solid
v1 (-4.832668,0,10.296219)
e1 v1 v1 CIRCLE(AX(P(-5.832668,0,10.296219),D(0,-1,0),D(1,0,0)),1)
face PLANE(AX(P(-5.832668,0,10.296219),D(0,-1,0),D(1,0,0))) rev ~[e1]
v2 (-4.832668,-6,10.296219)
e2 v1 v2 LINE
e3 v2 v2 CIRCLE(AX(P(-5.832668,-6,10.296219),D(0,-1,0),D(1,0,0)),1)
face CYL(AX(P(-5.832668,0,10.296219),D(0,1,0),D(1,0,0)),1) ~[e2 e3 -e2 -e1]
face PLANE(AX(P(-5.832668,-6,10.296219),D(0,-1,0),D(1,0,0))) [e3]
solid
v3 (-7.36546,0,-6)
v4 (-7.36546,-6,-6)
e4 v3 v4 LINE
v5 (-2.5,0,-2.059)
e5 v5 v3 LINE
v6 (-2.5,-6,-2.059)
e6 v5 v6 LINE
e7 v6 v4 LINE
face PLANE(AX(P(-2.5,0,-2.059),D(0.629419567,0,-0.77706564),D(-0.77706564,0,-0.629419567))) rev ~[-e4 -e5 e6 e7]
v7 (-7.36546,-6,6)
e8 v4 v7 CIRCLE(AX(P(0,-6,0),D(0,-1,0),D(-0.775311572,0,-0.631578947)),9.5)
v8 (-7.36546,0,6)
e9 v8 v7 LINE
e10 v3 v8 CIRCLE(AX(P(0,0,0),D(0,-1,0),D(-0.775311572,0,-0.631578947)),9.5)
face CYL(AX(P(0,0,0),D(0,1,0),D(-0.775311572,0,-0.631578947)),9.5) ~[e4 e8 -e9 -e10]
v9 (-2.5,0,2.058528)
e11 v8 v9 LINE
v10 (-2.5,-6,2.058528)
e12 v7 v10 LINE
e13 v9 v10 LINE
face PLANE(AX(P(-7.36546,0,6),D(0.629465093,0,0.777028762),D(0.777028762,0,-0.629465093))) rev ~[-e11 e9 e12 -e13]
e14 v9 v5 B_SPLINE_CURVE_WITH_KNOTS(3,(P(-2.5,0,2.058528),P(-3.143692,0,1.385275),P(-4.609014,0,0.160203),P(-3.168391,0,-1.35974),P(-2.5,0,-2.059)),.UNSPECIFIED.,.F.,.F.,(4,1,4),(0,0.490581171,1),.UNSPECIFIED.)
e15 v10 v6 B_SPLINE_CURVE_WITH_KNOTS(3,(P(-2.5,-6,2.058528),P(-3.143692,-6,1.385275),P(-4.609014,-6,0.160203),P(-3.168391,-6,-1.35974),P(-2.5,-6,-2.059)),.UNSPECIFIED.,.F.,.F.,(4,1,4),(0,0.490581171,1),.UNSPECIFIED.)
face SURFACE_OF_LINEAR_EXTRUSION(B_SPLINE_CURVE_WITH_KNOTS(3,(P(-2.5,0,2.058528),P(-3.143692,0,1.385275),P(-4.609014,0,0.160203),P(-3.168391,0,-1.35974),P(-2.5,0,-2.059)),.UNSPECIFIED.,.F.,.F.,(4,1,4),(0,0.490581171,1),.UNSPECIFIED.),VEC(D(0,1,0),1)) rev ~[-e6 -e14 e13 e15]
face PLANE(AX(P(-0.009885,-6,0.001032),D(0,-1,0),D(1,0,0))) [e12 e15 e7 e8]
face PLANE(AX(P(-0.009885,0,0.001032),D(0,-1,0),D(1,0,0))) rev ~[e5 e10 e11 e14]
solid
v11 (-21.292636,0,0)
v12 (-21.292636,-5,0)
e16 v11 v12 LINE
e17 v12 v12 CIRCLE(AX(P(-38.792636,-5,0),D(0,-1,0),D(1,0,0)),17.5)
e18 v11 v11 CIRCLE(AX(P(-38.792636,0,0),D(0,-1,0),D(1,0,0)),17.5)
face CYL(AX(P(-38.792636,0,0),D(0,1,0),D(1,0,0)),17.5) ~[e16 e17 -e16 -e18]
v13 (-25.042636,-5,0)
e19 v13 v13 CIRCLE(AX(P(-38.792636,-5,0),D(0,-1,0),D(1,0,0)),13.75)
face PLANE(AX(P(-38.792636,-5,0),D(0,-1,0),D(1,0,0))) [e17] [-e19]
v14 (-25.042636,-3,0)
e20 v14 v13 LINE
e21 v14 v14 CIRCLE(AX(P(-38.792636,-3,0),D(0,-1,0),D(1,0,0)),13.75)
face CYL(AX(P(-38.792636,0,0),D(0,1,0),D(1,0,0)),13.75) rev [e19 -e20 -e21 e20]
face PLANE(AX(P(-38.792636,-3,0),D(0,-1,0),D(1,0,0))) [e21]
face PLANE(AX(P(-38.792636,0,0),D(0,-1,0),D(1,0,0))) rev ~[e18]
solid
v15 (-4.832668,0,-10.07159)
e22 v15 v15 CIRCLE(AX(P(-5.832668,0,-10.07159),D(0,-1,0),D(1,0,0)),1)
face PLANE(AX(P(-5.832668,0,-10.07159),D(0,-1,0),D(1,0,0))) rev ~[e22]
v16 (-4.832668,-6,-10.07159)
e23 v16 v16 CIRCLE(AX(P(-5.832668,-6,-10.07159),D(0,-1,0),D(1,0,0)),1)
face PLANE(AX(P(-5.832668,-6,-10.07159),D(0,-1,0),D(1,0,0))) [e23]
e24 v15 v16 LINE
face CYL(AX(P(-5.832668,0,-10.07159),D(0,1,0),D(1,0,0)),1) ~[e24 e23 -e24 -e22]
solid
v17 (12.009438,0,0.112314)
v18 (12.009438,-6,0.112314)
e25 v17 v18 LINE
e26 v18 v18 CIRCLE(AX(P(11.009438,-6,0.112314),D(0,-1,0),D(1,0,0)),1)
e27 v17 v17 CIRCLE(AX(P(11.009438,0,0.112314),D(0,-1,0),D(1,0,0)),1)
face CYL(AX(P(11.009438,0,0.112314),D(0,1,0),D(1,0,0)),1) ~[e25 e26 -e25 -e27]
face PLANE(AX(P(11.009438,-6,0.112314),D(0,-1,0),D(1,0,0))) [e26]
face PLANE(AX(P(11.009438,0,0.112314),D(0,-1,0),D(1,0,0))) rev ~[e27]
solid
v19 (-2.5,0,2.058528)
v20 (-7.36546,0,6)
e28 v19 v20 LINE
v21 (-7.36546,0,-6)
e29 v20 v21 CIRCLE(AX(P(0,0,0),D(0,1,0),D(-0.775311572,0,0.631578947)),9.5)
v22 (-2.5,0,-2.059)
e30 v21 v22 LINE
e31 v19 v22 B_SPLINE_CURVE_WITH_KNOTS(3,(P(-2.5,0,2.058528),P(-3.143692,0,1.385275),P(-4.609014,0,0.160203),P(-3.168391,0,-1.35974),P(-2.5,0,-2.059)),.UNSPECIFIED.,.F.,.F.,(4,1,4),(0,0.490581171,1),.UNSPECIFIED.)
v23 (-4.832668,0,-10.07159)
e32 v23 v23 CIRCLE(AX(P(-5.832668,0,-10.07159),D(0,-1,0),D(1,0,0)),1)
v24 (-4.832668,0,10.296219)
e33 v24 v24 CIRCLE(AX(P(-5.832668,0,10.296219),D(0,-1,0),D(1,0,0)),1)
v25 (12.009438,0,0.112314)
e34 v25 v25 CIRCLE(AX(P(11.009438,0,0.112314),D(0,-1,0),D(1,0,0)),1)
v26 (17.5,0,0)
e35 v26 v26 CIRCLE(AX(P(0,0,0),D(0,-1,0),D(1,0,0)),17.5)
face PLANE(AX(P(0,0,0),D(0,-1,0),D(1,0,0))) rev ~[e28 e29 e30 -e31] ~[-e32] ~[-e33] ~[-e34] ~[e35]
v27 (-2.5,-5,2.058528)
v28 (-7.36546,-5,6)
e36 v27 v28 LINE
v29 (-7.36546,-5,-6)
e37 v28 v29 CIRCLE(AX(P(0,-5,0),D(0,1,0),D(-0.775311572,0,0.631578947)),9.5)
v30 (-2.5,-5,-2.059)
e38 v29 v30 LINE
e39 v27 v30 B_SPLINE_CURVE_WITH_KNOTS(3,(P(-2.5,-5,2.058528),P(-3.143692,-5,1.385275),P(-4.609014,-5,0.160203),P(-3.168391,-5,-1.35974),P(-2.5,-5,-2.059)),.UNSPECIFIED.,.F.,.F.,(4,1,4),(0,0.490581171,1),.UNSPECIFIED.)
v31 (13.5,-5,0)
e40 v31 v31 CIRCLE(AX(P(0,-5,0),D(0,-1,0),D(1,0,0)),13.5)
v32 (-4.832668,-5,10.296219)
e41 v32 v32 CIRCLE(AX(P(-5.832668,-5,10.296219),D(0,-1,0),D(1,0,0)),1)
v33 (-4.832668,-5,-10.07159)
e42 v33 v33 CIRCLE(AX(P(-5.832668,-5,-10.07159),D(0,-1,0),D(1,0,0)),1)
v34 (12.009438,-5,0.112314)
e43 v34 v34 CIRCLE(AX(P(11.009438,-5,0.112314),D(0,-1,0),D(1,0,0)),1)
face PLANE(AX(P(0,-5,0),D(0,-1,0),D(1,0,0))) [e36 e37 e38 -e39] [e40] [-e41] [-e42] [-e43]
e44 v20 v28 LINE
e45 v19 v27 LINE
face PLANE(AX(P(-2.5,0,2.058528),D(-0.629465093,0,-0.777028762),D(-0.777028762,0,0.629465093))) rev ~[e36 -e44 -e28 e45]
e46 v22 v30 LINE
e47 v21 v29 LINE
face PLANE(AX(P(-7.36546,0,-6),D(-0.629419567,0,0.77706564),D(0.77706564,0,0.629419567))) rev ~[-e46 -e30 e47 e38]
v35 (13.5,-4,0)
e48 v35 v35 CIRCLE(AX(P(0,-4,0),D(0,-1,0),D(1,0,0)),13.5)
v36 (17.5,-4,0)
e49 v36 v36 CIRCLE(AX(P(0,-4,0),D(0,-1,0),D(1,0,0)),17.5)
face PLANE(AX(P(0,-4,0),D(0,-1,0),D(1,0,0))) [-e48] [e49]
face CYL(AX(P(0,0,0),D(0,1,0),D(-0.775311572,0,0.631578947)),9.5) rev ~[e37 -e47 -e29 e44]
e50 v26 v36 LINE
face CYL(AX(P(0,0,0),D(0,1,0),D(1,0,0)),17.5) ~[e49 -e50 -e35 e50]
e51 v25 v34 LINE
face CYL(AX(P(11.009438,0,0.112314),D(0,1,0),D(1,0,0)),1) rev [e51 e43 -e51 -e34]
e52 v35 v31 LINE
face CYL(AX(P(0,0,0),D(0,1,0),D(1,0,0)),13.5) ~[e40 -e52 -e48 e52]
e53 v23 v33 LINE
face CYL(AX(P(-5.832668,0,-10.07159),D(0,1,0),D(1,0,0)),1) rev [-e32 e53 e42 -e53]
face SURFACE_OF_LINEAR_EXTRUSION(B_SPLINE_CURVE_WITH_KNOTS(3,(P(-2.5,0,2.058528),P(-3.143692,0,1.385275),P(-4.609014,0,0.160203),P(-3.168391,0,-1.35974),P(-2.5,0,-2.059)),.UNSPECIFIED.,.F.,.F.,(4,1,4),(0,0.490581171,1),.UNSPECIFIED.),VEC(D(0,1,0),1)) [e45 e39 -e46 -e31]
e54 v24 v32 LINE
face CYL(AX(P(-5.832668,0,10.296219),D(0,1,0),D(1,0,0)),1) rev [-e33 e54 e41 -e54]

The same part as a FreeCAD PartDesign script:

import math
import FreeCAD as App
import Part
import Sketcher

doc = App.newDocument("Part")
params = doc.addObject("Spreadsheet::Sheet", "Params")
for row, (alias, value) in enumerate([
    ("sketch1_radius", "9.5 mm"),
    ("pad1_length", "6 mm"),
    ("sketch2_diameter", "2 mm"),
    ("pad2_length", "6 mm"),
    ("sketch3_diameter", "2 mm"),
    ("pad3_length", "6 mm"),
    ("sketch4_diameter", "2 mm"),
    ("pad4_length", "6 mm"),
    ("sketch5_diameter", "27 mm"),
    ("sketch5_diameter2", "2 mm"),
    ("sketch5_radius", "9.5 mm"),
    ("pad5_length", "5 mm"),
    ("sketch6_diameter", "35 mm"),
    ("sketch6_diameter2", "27 mm"),
    ("pad6_length", "4 mm"),
    ("sketch7_diameter", "27.5 mm"),
    ("pad7_length", "3 mm"),
    ("sketch8_diameter", "35 mm"),
    ("sketch8_diameter2", "27.5 mm"),
    ("pad8_length", "5 mm"),
], start=1):
    params.set(f"A{row}", alias)
    params.set(f"B{row}", "=" + value)
    params.setAlias(f"B{row}", alias)

body = doc.addObject("PartDesign::Body", "Body")

# Sketch on XZ plane
sketch1 = body.newObject("Sketcher::SketchObject", "Sketch")
sketch1.AttachmentSupport = (doc.getObject("XZ_Plane"), [""])
sketch1.MapMode = "FlatFace"
sketch1.addGeometry(Part.ArcOfCircle(Part.Circle(App.Vector(0, 0, 0), App.Vector(0, 0, 1), 9.5), math.radians(-140.833289), math.radians(140.833289)), False)
sketch1.addGeometry(Part.LineSegment(App.Vector(-7.36546, 6, 0), App.Vector(-2.5, 2.058528, 0)), False)
sketch1.addGeometry(Part.BSplineCurve([App.Vector(-2.5, 2.058528, 0), App.Vector(-3.143692, 1.385275, 0), App.Vector(-4.609014, 0.160203, 0), App.Vector(-3.168391, -1.35974, 0), App.Vector(-2.5, -2.059, 0)], [4, 1, 4], [0, 0.490581171, 1], False, 3, [1, 1, 1, 1, 1], False), False)
sketch1.addGeometry(Part.LineSegment(App.Vector(-2.5, -2.059, 0), App.Vector(-7.36546, -6, 0)), False)
sketch1.addConstraint(Sketcher.Constraint("Block", 2))
sketch1.addConstraint(Sketcher.Constraint("Coincident", 0, 2, 1, 1))
sketch1.addConstraint(Sketcher.Constraint("Coincident", 1, 2, 2, 1))
sketch1.addConstraint(Sketcher.Constraint("Coincident", 2, 2, 3, 1))
sketch1.addConstraint(Sketcher.Constraint("Coincident", 3, 2, 0, 1))
sketch1.addConstraint(Sketcher.Constraint("Coincident", 0, 3, -1, 1))
sketch1.addConstraint(Sketcher.Constraint("Vertical", 0, 2, 3, 2))
sketch1.addConstraint(Sketcher.Constraint("Radius", 0, 9.5))
sketch1.addConstraint(Sketcher.Constraint("DistanceY", -1, 1, 0, 2, 6.0))
sketch1.setExpression("Constraints[7]", "Params.sketch1_radius")
pad1 = body.newObject("PartDesign::Pad", "Pad")
pad1.Profile = sketch1
pad1.setExpression("Length", "Params.pad1_length")
body2 = doc.addObject("PartDesign::Body", "Body001")

# Sketch on XZ plane
sketch2 = body2.newObject("Sketcher::SketchObject", "Sketch001")
sketch2.AttachmentSupport = (doc.getObject("XZ_Plane001"), [""])
sketch2.MapMode = "FlatFace"
sketch2.addGeometry(Part.Circle(App.Vector(-5.8, 10.3, 0), App.Vector(0, 0, 1), 1), False)
sketch2.addConstraint(Sketcher.Constraint("Diameter", 0, 2.0))
sketch2.addConstraint(Sketcher.Constraint("DistanceY", -1, 1, 0, 3, 10.296219))
sketch2.addConstraint(Sketcher.Constraint("DistanceX", 0, 3, -1, 1, 5.832668))
sketch2.setExpression("Constraints[0]", "Params.sketch2_diameter")
pad2 = body2.newObject("PartDesign::Pad", "Pad001")
pad2.Profile = sketch2
pad2.setExpression("Length", "Params.pad2_length")
body3 = doc.addObject("PartDesign::Body", "Body002")

# Sketch on XZ plane
sketch3 = body3.newObject("Sketcher::SketchObject", "Sketch002")
sketch3.AttachmentSupport = (doc.getObject("XZ_Plane002"), [""])
sketch3.MapMode = "FlatFace"
sketch3.addGeometry(Part.Circle(App.Vector(-5.8, -10.1, 0), App.Vector(0, 0, 1), 1), False)
sketch3.addConstraint(Sketcher.Constraint("Diameter", 0, 2.0))
sketch3.addConstraint(Sketcher.Constraint("DistanceY", 0, 3, -1, 1, 10.07159))
sketch3.addConstraint(Sketcher.Constraint("DistanceX", 0, 3, -1, 1, 5.832668))
sketch3.setExpression("Constraints[0]", "Params.sketch3_diameter")
pad3 = body3.newObject("PartDesign::Pad", "Pad002")
pad3.Profile = sketch3
pad3.setExpression("Length", "Params.pad3_length")
body4 = doc.addObject("PartDesign::Body", "Body003")

# Sketch on XZ plane
sketch4 = body4.newObject("Sketcher::SketchObject", "Sketch003")
sketch4.AttachmentSupport = (doc.getObject("XZ_Plane003"), [""])
sketch4.MapMode = "FlatFace"
sketch4.addGeometry(Part.Circle(App.Vector(11, 0.1, 0), App.Vector(0, 0, 1), 1), False)
sketch4.addConstraint(Sketcher.Constraint("Diameter", 0, 2.0))
sketch4.addConstraint(Sketcher.Constraint("DistanceX", -1, 1, 0, 3, 11.009438))
sketch4.addConstraint(Sketcher.Constraint("DistanceY", -1, 1, 0, 3, 0.112314))
sketch4.setExpression("Constraints[0]", "Params.sketch4_diameter")
pad4 = body4.newObject("PartDesign::Pad", "Pad003")
pad4.Profile = sketch4
pad4.setExpression("Length", "Params.pad4_length")
body5 = doc.addObject("PartDesign::Body", "Body004")

# Sketch on XZ plane
sketch5 = body5.newObject("Sketcher::SketchObject", "Sketch004")
sketch5.AttachmentSupport = (doc.getObject("XZ_Plane004"), [""])
sketch5.MapMode = "FlatFace"
sketch5.addGeometry(Part.Circle(App.Vector(0, 0, 0), App.Vector(0, 0, 1), 13.5), False)
sketch5.addGeometry(Part.Circle(App.Vector(-5.832668, -10.07159, 0), App.Vector(0, 0, 1), 1), False)
sketch5.addGeometry(Part.BSplineCurve([App.Vector(-2.5, 2.058528, 0), App.Vector(-3.143692, 1.385275, 0), App.Vector(-4.609014, 0.160203, 0), App.Vector(-3.168391, -1.35974, 0), App.Vector(-2.5, -2.059, 0)], [4, 1, 4], [0, 0.490581171, 1], False, 3, [1, 1, 1, 1, 1], False), False)
sketch5.addGeometry(Part.LineSegment(App.Vector(-2.5, 2.058528, 0), App.Vector(-7.36546, 6, 0)), False)
sketch5.addGeometry(Part.ArcOfCircle(Part.Circle(App.Vector(0, 0, 0), App.Vector(0, 0, 1), 9.5), math.radians(-140.833289), math.radians(140.833289)), False)
sketch5.addGeometry(Part.LineSegment(App.Vector(-7.36546, -6, 0), App.Vector(-2.5, -2.059, 0)), False)
sketch5.addGeometry(Part.Circle(App.Vector(-5.832668, 10.296219, 0), App.Vector(0, 0, 1), 1), False)
sketch5.addGeometry(Part.Circle(App.Vector(11.009438, 0.112314, 0), App.Vector(0, 0, 1), 1), False)
sketch5.addConstraint(Sketcher.Constraint("Block", 2))
sketch5.addConstraint(Sketcher.Constraint("Coincident", 2, 1, 3, 1))
sketch5.addConstraint(Sketcher.Constraint("Coincident", 3, 2, 4, 2))
sketch5.addConstraint(Sketcher.Constraint("Coincident", 4, 1, 5, 1))
sketch5.addConstraint(Sketcher.Constraint("Coincident", 5, 2, 2, 2))
sketch5.addConstraint(Sketcher.Constraint("Coincident", 0, 3, -1, 1))
sketch5.addConstraint(Sketcher.Constraint("Coincident", 4, 3, -1, 1))
sketch5.addConstraint(Sketcher.Constraint("Equal", 1, 6))
sketch5.addConstraint(Sketcher.Constraint("Equal", 6, 7))
sketch5.addConstraint(Sketcher.Constraint("Vertical", 1, 3, 6, 3))
sketch5.addConstraint(Sketcher.Constraint("Vertical", 3, 2, 4, 1))
sketch5.addConstraint(Sketcher.Constraint("Diameter", 0, 27.0))
sketch5.addConstraint(Sketcher.Constraint("Diameter", 1, 2.0))
sketch5.addConstraint(Sketcher.Constraint("Radius", 4, 9.5))
sketch5.addConstraint(Sketcher.Constraint("DistanceY", -1, 1, 3, 2, 6.0))
sketch5.addConstraint(Sketcher.Constraint("DistanceY", 1, 3, -1, 1, 10.07159))
sketch5.addConstraint(Sketcher.Constraint("DistanceY", -1, 1, 6, 3, 10.296219))
sketch5.addConstraint(Sketcher.Constraint("DistanceX", 1, 3, -1, 1, 5.832668))
sketch5.addConstraint(Sketcher.Constraint("DistanceX", -1, 1, 7, 3, 11.009438))
sketch5.addConstraint(Sketcher.Constraint("DistanceY", -1, 1, 7, 3, 0.112314))
sketch5.setExpression("Constraints[11]", "Params.sketch5_diameter")
sketch5.setExpression("Constraints[12]", "Params.sketch5_diameter2")
sketch5.setExpression("Constraints[13]", "Params.sketch5_radius")
pad5 = body5.newObject("PartDesign::Pad", "Pad004")
pad5.Profile = sketch5
pad5.setExpression("Length", "Params.pad5_length")

# Sketch on XZ plane
sketch6 = body5.newObject("Sketcher::SketchObject", "Sketch005")
sketch6.AttachmentSupport = (doc.getObject("XZ_Plane004"), [""])
sketch6.MapMode = "FlatFace"
sketch6.addGeometry(Part.Circle(App.Vector(0, 0, 0), App.Vector(0, 0, 1), 18), False)
sketch6.addGeometry(Part.Circle(App.Vector(0, 0, 0), App.Vector(0, 0, 1), 14), False)
sketch6.addConstraint(Sketcher.Constraint("Coincident", 0, 3, -1, 1))
sketch6.addConstraint(Sketcher.Constraint("Coincident", 1, 3, -1, 1))
sketch6.addConstraint(Sketcher.Constraint("Diameter", 0, 35.0))
sketch6.addConstraint(Sketcher.Constraint("Diameter", 1, 27.0))
sketch6.setExpression("Constraints[2]", "Params.sketch6_diameter")
sketch6.setExpression("Constraints[3]", "Params.sketch6_diameter2")
pad6 = body5.newObject("PartDesign::Pad", "Pad005")
pad6.Profile = sketch6
pad6.setExpression("Length", "Params.pad6_length")
body6 = doc.addObject("PartDesign::Body", "Body005")

# Sketch on XZ plane
sketch7 = body6.newObject("Sketcher::SketchObject", "Sketch006")
sketch7.AttachmentSupport = (doc.getObject("XZ_Plane005"), [""])
sketch7.MapMode = "FlatFace"
sketch7.addGeometry(Part.Circle(App.Vector(-39, 0, 0), App.Vector(0, 0, 1), 14), False)
sketch7.addConstraint(Sketcher.Constraint("PointOnObject", 0, 3, -1))
sketch7.addConstraint(Sketcher.Constraint("Diameter", 0, 27.5))
sketch7.addConstraint(Sketcher.Constraint("DistanceX", 0, 3, -1, 1, 38.792636))
sketch7.setExpression("Constraints[1]", "Params.sketch7_diameter")
pad7 = body6.newObject("PartDesign::Pad", "Pad006")
pad7.Profile = sketch7
pad7.setExpression("Length", "Params.pad7_length")

# Sketch on XZ plane
sketch8 = body6.newObject("Sketcher::SketchObject", "Sketch007")
sketch8.AttachmentSupport = (doc.getObject("XZ_Plane005"), [""])
sketch8.MapMode = "FlatFace"
sketch8.addGeometry(Part.Circle(App.Vector(-39, 0, 0), App.Vector(0, 0, 1), 18), False)
sketch8.addGeometry(Part.Circle(App.Vector(-39, 0, 0), App.Vector(0, 0, 1), 14), False)
sketch8.addConstraint(Sketcher.Constraint("Coincident", 1, 3, 0, 3))
sketch8.addConstraint(Sketcher.Constraint("PointOnObject", 0, 3, -1))
sketch8.addConstraint(Sketcher.Constraint("Diameter", 0, 35.0))
sketch8.addConstraint(Sketcher.Constraint("Diameter", 1, 27.5))
sketch8.addConstraint(Sketcher.Constraint("DistanceX", 0, 3, -1, 1, 38.792636))
sketch8.setExpression("Constraints[2]", "Params.sketch8_diameter")
sketch8.setExpression("Constraints[3]", "Params.sketch8_diameter2")
pad8 = body6.newObject("PartDesign::Pad", "Pad007")
pad8.Profile = sketch8
pad8.setExpression("Length", "Params.pad8_length")

doc.recompute()
